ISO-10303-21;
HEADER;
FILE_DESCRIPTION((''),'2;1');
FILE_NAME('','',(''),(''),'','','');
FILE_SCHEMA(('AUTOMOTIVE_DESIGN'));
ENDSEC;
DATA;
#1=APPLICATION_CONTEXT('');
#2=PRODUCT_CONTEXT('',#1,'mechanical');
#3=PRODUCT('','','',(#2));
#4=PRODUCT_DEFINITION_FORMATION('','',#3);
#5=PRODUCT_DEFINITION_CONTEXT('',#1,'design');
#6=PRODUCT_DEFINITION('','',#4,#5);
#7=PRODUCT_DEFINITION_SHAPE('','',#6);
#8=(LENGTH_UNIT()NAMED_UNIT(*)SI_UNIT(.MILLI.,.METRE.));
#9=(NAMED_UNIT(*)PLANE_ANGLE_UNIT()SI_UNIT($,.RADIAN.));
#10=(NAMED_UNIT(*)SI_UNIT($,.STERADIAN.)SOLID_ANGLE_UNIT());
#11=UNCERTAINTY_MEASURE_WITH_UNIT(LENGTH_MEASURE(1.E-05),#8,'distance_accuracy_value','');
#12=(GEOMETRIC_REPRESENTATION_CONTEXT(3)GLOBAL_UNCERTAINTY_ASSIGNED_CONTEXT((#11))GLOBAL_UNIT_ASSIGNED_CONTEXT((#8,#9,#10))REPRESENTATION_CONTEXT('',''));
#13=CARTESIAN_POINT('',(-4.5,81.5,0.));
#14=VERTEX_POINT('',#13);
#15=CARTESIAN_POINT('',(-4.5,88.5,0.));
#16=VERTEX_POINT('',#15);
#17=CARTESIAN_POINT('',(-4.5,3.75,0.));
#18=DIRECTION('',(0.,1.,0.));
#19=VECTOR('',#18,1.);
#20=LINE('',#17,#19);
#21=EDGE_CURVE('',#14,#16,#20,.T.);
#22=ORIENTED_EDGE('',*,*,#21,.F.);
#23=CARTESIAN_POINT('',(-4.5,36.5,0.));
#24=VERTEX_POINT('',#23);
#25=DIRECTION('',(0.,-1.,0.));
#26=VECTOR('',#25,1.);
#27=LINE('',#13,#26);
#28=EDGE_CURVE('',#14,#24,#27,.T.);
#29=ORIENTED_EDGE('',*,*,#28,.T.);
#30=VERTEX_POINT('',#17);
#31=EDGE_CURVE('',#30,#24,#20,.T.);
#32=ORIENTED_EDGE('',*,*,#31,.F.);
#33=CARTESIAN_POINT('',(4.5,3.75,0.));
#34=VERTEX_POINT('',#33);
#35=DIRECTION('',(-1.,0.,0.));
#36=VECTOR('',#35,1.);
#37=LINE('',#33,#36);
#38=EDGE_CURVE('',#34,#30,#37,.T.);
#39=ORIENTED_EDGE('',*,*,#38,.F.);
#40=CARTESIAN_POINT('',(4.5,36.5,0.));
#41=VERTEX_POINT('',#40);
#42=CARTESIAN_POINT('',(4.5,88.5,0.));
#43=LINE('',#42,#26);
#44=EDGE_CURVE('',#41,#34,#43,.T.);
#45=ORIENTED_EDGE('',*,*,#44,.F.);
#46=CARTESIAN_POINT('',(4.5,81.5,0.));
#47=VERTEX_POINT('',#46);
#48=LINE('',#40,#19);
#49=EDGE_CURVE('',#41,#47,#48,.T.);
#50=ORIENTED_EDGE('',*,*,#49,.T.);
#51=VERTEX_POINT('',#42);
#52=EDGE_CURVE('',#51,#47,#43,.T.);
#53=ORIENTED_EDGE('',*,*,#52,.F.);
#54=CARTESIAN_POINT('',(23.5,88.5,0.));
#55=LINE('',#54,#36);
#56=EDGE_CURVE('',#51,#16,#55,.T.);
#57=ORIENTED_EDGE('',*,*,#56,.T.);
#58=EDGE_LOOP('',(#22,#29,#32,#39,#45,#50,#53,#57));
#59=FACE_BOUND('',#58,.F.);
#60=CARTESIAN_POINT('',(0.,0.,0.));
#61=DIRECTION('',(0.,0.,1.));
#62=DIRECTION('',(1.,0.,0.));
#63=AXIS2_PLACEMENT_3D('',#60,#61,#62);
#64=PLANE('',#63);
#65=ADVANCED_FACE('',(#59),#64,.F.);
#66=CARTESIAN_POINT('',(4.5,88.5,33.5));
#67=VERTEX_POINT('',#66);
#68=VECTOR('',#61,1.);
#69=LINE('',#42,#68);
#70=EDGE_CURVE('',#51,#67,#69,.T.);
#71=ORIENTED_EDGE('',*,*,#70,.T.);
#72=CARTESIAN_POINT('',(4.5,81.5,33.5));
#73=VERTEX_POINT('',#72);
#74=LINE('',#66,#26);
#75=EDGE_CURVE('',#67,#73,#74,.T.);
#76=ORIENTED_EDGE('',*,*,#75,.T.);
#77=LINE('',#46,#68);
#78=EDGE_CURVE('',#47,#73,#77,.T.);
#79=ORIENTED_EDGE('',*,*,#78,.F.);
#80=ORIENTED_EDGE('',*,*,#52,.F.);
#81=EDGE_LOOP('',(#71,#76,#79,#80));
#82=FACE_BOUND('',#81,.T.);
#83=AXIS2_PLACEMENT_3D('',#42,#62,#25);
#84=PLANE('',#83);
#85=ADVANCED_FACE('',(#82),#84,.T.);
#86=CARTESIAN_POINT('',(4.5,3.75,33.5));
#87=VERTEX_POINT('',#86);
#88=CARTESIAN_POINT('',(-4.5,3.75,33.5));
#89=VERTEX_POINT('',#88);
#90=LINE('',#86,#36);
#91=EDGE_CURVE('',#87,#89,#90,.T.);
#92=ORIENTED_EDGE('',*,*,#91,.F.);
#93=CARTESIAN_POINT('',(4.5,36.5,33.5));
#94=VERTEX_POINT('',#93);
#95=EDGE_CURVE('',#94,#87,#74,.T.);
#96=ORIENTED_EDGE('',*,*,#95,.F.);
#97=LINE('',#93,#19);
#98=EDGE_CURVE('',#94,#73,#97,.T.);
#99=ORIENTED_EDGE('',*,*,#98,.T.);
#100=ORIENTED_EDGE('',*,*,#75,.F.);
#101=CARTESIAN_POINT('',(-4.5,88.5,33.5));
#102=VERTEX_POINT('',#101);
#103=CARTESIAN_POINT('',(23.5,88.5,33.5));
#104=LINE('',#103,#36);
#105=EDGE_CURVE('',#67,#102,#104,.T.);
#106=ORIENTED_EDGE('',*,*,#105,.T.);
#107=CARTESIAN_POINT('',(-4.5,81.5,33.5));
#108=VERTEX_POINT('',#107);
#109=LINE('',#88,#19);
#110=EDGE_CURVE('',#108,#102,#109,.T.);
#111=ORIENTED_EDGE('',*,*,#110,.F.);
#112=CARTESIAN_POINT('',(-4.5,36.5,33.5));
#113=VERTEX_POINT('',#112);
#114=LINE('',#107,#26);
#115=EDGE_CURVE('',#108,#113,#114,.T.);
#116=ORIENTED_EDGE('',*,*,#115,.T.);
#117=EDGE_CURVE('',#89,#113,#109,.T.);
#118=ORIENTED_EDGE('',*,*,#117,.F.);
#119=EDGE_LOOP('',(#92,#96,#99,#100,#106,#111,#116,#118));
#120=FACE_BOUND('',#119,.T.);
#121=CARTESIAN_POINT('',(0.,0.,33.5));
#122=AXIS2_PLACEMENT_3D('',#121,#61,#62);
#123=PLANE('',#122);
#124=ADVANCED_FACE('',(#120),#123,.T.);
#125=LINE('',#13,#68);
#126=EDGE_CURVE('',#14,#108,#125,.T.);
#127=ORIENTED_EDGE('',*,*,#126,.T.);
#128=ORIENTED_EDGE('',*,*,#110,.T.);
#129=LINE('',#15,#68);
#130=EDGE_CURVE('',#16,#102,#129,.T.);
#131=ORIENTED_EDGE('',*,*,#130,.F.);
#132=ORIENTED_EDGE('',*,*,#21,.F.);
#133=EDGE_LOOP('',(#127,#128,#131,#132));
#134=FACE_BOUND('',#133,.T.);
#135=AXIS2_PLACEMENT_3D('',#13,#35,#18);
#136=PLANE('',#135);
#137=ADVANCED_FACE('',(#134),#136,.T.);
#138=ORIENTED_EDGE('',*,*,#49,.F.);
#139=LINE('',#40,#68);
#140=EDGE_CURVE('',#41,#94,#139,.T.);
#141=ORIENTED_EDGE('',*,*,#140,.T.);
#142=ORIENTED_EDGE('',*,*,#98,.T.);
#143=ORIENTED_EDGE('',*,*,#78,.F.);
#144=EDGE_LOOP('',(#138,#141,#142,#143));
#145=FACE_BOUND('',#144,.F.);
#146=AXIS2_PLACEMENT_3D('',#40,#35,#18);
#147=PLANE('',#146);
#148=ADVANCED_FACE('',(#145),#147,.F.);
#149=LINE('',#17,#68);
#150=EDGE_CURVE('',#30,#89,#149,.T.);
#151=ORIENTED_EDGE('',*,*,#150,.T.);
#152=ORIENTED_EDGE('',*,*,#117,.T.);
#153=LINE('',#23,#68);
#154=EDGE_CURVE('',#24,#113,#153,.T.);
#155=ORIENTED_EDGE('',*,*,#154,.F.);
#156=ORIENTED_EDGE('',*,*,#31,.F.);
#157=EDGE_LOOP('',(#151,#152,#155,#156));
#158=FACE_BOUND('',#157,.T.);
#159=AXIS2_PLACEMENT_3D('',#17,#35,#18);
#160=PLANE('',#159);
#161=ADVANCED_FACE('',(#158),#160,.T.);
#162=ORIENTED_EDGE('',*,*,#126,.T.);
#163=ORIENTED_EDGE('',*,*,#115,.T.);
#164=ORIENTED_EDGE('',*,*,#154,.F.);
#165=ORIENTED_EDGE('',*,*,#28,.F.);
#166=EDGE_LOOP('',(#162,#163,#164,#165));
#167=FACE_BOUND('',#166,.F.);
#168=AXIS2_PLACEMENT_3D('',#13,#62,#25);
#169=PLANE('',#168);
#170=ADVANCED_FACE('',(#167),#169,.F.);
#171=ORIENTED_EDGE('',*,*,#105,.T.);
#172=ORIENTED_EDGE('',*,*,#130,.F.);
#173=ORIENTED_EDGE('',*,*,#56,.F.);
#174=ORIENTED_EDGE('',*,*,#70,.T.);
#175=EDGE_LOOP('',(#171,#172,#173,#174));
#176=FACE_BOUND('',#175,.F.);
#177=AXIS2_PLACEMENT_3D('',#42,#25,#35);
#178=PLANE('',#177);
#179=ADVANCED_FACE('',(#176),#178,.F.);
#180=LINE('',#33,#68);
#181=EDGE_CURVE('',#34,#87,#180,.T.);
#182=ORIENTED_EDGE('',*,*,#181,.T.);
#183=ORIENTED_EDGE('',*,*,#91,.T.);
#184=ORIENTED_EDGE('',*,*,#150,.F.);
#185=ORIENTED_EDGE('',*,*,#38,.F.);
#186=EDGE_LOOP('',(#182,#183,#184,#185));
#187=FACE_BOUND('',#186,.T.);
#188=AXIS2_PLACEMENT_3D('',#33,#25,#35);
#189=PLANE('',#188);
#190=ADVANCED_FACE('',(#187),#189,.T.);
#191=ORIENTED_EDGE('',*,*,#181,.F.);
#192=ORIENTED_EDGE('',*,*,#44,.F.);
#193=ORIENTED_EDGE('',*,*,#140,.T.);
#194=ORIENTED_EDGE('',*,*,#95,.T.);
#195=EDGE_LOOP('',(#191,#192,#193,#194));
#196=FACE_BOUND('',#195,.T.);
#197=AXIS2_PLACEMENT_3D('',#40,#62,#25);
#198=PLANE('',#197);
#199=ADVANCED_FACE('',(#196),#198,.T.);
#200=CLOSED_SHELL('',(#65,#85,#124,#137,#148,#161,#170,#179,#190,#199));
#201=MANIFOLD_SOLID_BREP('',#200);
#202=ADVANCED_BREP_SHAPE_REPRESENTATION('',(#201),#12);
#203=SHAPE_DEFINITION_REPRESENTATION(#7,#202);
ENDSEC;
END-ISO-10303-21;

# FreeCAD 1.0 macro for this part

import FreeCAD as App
import Part
import Sketcher
Q = App.Units.Quantity


def add_polygon(sketch, points):
    """Adds a closed chain of lines whose ends are joined by coincident constraints."""
    first, n = sketch.GeometryCount, len(points)
    for a, b in zip(points, points[1:] + points[:1]):
        sketch.addGeometry(Part.LineSegment(App.Vector(*a, 0), App.Vector(*b, 0)), False)
    for i in range(n):
        sketch.addConstraint(Sketcher.Constraint("Coincident", first + i, 2, first + (i + 1) % n, 1))

doc = App.newDocument("Part")
body = doc.addObject("PartDesign::Body", "Body")

# Sketch on XY plane
sketch1 = body.newObject("Sketcher::SketchObject", "Sketch")
sketch1.AttachmentSupport = (doc.getObject("XY_Plane"), [""])
sketch1.MapMode = "FlatFace"
add_polygon(sketch1, [(4.5, 3.75), (4.5, 88.5), (-4.5, 88.5), (-4.5, 3.75)])  # lines 0-3
sketch1.addConstraint([
    Sketcher.Constraint("Vertical", 0),
    Sketcher.Constraint("Horizontal", 1),
    Sketcher.Constraint("Vertical", 2),
    Sketcher.Constraint("Horizontal", 3),
    Sketcher.Constraint("DistanceX", 1, 2, 1, 1, Q("9 mm")),
    Sketcher.Constraint("DistanceY", 0, 1, 0, 2, Q("84.75 mm")),
    Sketcher.Constraint("DistanceX", -1, 1, 0, 2, Q("4.5 mm")),
    Sketcher.Constraint("DistanceY", -1, 1, 0, 2, Q("88.5 mm")),
])
pad1 = body.newObject("PartDesign::Pad", "Pad")
pad1.Profile = sketch1
pad1.Length = 33.5

doc.recompute()
